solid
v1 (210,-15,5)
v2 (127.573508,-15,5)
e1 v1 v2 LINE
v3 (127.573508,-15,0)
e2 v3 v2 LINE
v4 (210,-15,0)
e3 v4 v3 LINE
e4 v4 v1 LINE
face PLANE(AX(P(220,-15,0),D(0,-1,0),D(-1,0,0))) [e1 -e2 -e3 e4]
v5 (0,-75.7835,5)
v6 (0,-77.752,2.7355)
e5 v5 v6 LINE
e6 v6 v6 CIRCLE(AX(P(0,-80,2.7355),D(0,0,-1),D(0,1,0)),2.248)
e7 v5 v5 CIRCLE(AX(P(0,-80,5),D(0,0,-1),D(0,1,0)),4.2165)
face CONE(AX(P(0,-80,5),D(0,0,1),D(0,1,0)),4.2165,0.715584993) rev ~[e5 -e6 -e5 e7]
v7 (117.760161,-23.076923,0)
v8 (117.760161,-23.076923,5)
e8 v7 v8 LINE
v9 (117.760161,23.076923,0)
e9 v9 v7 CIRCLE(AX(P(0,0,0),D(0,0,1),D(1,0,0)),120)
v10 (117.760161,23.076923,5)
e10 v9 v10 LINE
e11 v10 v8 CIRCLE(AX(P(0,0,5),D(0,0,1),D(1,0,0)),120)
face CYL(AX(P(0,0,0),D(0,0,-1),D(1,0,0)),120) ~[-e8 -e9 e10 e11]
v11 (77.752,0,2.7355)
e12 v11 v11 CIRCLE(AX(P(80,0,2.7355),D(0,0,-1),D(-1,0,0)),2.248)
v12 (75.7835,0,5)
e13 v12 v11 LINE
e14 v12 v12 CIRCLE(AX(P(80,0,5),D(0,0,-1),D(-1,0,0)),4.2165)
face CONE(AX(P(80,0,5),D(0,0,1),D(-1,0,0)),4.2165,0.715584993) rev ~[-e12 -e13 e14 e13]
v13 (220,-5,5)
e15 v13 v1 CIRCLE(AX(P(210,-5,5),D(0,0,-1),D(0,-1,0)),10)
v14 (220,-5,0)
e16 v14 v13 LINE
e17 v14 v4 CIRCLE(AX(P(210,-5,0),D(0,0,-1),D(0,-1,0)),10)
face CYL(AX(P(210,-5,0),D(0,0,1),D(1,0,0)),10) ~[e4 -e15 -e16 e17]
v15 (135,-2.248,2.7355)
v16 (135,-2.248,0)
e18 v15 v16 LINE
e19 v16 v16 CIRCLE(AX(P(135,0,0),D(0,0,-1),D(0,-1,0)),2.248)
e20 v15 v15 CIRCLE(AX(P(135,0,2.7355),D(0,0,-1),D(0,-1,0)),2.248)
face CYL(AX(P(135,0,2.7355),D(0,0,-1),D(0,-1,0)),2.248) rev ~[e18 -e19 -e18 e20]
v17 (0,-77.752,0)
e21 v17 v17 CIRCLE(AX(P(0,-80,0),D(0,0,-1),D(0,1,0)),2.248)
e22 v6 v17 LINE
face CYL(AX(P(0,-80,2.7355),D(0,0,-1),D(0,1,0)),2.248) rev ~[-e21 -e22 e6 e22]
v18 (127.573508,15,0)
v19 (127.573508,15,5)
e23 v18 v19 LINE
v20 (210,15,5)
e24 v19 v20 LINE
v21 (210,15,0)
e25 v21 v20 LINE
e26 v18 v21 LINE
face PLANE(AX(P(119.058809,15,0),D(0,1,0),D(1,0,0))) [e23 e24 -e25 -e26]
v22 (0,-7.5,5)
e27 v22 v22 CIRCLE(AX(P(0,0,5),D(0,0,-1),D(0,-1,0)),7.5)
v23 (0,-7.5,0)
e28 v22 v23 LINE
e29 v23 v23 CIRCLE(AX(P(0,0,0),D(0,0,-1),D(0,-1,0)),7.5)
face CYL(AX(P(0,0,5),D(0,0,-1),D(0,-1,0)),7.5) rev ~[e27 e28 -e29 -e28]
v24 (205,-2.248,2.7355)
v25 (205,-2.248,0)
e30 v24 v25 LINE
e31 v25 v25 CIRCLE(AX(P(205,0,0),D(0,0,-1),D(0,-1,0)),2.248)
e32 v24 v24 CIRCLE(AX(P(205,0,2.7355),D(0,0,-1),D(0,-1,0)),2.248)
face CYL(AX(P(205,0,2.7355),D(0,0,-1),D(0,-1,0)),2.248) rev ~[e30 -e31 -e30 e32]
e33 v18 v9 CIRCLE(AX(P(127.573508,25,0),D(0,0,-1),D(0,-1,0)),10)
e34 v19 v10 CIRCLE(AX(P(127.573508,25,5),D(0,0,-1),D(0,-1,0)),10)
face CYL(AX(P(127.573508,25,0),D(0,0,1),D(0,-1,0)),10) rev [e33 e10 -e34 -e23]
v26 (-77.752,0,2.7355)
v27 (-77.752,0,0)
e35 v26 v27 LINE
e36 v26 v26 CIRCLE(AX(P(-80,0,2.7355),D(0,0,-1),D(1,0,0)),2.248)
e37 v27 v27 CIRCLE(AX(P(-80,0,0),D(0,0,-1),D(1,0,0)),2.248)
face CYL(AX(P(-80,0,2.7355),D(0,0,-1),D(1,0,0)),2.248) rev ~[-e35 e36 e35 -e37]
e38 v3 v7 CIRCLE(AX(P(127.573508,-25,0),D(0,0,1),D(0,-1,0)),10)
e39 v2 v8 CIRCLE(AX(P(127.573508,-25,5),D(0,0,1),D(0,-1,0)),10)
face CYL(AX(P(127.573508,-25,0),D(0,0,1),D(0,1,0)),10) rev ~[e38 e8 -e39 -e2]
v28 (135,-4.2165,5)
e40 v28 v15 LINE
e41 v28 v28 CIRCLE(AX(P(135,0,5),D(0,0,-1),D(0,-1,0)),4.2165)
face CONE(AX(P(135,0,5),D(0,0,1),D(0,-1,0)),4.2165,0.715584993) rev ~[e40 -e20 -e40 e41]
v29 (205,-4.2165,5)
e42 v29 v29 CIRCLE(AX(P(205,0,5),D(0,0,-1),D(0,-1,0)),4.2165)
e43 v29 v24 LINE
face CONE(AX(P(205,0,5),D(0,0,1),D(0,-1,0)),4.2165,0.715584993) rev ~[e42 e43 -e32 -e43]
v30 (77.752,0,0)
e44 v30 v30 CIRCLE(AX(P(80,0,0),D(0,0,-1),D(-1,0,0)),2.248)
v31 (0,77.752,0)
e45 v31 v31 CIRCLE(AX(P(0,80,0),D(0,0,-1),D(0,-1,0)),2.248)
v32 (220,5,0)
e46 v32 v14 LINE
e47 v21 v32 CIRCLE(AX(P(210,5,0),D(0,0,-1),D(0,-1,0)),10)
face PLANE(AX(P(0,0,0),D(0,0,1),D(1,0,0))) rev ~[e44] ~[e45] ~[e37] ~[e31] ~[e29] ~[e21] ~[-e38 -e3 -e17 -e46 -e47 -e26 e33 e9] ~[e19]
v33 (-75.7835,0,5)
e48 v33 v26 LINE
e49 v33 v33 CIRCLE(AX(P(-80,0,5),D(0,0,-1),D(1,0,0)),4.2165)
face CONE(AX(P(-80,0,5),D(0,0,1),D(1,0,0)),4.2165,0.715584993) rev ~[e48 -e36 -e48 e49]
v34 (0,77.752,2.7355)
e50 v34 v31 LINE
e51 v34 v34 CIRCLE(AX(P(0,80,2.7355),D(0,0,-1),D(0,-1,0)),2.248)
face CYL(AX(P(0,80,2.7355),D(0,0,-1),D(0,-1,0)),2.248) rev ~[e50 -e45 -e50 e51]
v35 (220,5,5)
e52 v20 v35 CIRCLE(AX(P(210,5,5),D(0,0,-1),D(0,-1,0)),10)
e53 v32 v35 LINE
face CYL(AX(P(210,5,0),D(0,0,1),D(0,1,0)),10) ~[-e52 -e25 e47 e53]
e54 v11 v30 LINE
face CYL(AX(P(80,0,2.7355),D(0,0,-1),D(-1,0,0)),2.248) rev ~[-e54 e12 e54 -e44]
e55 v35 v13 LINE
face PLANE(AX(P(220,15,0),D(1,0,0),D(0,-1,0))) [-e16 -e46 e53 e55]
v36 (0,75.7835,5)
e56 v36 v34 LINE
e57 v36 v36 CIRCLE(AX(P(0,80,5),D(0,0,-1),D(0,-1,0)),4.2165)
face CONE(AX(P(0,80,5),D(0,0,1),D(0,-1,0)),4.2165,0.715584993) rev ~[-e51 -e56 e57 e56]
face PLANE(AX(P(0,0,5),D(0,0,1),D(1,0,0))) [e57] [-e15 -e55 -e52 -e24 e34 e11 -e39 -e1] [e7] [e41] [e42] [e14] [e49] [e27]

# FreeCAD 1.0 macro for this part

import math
import FreeCAD as App
import Part
import Sketcher

V = App.Vector
Q = App.Units.Quantity


def edges_at(feature, points):
    """Names of the edges that pass closest to the given points."""
    edges = feature.Shape.Edges
    near = lambda p: min(range(len(edges)), key=lambda i: edges[i].distToShape(Part.Vertex(*p))[0])
    return sorted({f"Edge{near(p) + 1}" for p in points})

doc = App.newDocument("Part")
body = doc.addObject("PartDesign::Body", "Body")

# Sketch on XY plane
sketch1 = body.newObject("Sketcher::SketchObject", "Sketch")
sketch1.AttachmentSupport = (doc.getObject("XY_Plane"), [""])
sketch1.MapMode = "FlatFace"
sketch1.addGeometry([
    Part.LineSegment(V(119, -15, 0), V(220, -15, 0)),
    Part.LineSegment(V(220, -15, 0), V(220, 15, 0)),
    Part.LineSegment(V(220, 15, 0), V(119, 15, 0)),
    Part.ArcOfCircle(Part.Circle(V(0, 0, 0), V(0, 0, 1), 120), math.radians(7), math.radians(353)),
], False)
sketch1.addConstraint([
    Sketcher.Constraint("Coincident", 0, 2, 1, 1),
    Sketcher.Constraint("Coincident", 1, 2, 2, 1),
    Sketcher.Constraint("Coincident", 2, 2, 3, 1),
    Sketcher.Constraint("Coincident", 3, 2, 0, 1),
    Sketcher.Constraint("Horizontal", 0),
    Sketcher.Constraint("Vertical", 1),
    Sketcher.Constraint("Horizontal", 2),
    Sketcher.Constraint("Coincident", 3, 3, -1, 1),
    Sketcher.Constraint("Vertical", 2, 2, 3, 2),
    Sketcher.Constraint("Radius", 3, Q("120 mm")),
    Sketcher.Constraint("DistanceY", 1, 1, 1, 2, Q("30 mm")),
    Sketcher.Constraint("DistanceX", -1, 1, 0, 2, Q("220 mm")),
])
pad1 = body.newObject("PartDesign::Pad", "Pad")
pad1.Profile = sketch1
pad1.Length = 5
doc.recompute()

fillet = body.newObject("PartDesign::Fillet", "Fillet")
fillet.Base = (pad1, edges_at(pad1, [
    (119.059, -15, 2.5),
    (119.059, 15, 2.5),
    (220, -15, 2.5),
    (220, 15, 2.5),
]))
fillet.Radius = 10

# Sketch on XY plane
sketch2 = body.newObject("Sketcher::SketchObject", "Sketch001")
sketch2.AttachmentSupport = (doc.getObject("XY_Plane"), [""])
sketch2.MapMode = "FlatFace"
sketch2.AttachmentOffset = App.Placement(V(0, 0, 5), App.Rotation())
sketch2.addGeometry([
    Part.Circle(V(135, 0, 0), V(0, 0, 1), 2.2),
    Part.Circle(V(205, 0, 0), V(0, 0, 1), 2.2),
], False)
sketch2.addConstraint([
    Sketcher.Constraint("Equal", 0, 1),
    Sketcher.Constraint("PointOnObject", 0, 3, -1),
    Sketcher.Constraint("PointOnObject", 1, 3, -1),
    Sketcher.Constraint("Diameter", 0, Q("4.496 mm")),
    Sketcher.Constraint("DistanceX", -1, 1, 0, 3, Q("135 mm")),
    Sketcher.Constraint("DistanceX", -1, 1, 1, 3, Q("205 mm")),
])
doc.recompute()
hole = body.newObject("PartDesign::Hole", "Hole")
hole.Profile = sketch2
hole.ThreadType = "None"
hole.Diameter = 4.496
hole.DepthType = "ThroughAll"
hole.HoleCutType = "Countersink"
hole.HoleCutDiameter = 8.433
hole.HoleCutCountersinkAngle = 82

# Sketch on XY plane
sketch3 = body.newObject("Sketcher::SketchObject", "Sketch002")
sketch3.AttachmentSupport = (doc.getObject("XY_Plane"), [""])
sketch3.MapMode = "FlatFace"
sketch3.AttachmentOffset = App.Placement(V(0, 0, 5), App.Rotation())
sketch3.addGeometry(Part.Circle(V(0, 80, 0), V(0, 0, 1), 2.2), False)
sketch3.addConstraint([
    Sketcher.Constraint("PointOnObject", 0, 3, -2),
    Sketcher.Constraint("Diameter", 0, Q("4.496 mm")),
    Sketcher.Constraint("DistanceY", -1, 1, 0, 3, Q("80 mm")),
])
doc.recompute()
hole2 = body.newObject("PartDesign::Hole", "Hole001")
hole2.Profile = sketch3
hole2.ThreadType = "None"
hole2.Diameter = 4.496
hole2.DepthType = "ThroughAll"
hole2.HoleCutType = "Countersink"
hole2.HoleCutDiameter = 8.433
hole2.HoleCutCountersinkAngle = 82
doc.recompute()

polarpattern = body.newObject("PartDesign::PolarPattern", "PolarPattern")
polarpattern.Originals = [hole2]
polarpattern.Axis = (doc.getObject("Z_Axis"), [""])
polarpattern.Angle = 360
polarpattern.Occurrences = 4
body.Tip = polarpattern

# Sketch on XY plane
sketch4 = body.newObject("Sketcher::SketchObject", "Sketch003")
sketch4.AttachmentSupport = (doc.getObject("XY_Plane"), [""])
sketch4.MapMode = "FlatFace"
sketch4.AttachmentOffset = App.Placement(V(0, 0, 5), App.Rotation())
sketch4.addGeometry(Part.Circle(V(0, 0, 0), V(0, 0, 1), 8), False)
sketch4.addConstraint([
    Sketcher.Constraint("Coincident", 0, 3, -1, 1),
    Sketcher.Constraint("Diameter", 0, Q("15 mm")),
])
doc.recompute()
hole3 = body.newObject("PartDesign::Hole", "Hole002")
hole3.Profile = sketch4
hole3.ThreadType = "None"
hole3.Diameter = 15
hole3.DepthType = "ThroughAll"

doc.recompute()
